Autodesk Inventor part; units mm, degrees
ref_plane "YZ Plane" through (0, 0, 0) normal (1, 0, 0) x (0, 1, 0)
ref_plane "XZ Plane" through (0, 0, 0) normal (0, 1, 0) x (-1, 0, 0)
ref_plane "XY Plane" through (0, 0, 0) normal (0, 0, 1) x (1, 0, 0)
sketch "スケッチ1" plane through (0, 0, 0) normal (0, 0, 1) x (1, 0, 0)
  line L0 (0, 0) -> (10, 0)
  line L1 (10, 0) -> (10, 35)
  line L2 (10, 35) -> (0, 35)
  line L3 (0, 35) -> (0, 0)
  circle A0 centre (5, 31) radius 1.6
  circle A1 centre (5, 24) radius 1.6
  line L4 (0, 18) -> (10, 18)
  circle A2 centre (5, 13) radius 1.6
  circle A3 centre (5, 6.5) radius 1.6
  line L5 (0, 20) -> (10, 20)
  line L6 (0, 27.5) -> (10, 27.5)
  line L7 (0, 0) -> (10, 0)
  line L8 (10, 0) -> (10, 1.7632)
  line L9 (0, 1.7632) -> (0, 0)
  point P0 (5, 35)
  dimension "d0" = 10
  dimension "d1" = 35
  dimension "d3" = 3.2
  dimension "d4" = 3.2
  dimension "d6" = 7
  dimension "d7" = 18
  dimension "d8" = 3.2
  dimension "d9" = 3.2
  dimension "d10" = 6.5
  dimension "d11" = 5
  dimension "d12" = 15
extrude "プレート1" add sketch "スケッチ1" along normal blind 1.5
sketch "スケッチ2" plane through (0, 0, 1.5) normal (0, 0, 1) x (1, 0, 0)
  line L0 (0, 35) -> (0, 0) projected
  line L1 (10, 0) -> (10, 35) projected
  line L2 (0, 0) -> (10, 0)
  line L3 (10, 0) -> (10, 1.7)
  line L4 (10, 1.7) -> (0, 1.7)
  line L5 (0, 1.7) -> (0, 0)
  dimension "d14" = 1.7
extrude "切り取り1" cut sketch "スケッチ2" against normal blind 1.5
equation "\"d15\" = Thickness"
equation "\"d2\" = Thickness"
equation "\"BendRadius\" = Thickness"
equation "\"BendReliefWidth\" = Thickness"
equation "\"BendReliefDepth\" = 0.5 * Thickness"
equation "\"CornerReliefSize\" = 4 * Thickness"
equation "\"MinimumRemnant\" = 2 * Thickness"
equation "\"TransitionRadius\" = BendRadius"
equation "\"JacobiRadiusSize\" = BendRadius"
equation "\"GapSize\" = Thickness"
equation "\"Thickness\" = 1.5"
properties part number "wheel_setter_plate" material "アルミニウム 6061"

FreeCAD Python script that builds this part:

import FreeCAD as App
import Part
import Sketcher


def add_polygon(sketch, points):
    """Adds a closed chain of lines whose ends are joined by coincident constraints."""
    first, n = sketch.GeometryCount, len(points)
    for a, b in zip(points, points[1:] + points[:1]):
        sketch.addGeometry(Part.LineSegment(App.Vector(*a, 0), App.Vector(*b, 0)), False)
    for i in range(n):
        sketch.addConstraint(Sketcher.Constraint("Coincident", first + i, 2, first + (i + 1) % n, 1))

doc = App.newDocument("Part")
body = doc.addObject("PartDesign::Body", "Body")

# Sketch on XY plane
sketch1 = body.newObject("Sketcher::SketchObject", "Sketch")
sketch1.AttachmentSupport = (doc.getObject("XY_Plane"), [""])
sketch1.MapMode = "FlatFace"
add_polygon(sketch1, [(0, 0), (10, 0), (10, 35), (0, 35)])  # lines 0-3
sketch1.addGeometry(Part.Circle(App.Vector(5, 6.5, 0), App.Vector(0, 0, 1), 1.6), False)  # 4
sketch1.addGeometry(Part.Circle(App.Vector(5, 13, 0), App.Vector(0, 0, 1), 1.6), False)  # 5
sketch1.addGeometry(Part.Circle(App.Vector(5, 24, 0), App.Vector(0, 0, 1), 1.6), False)  # 6
sketch1.addGeometry(Part.Circle(App.Vector(5, 31, 0), App.Vector(0, 0, 1), 1.6), False)  # 7
sketch1.addConstraint([
    Sketcher.Constraint("Horizontal", 0),
    Sketcher.Constraint("Vertical", 1),
    Sketcher.Constraint("Horizontal", 2),
    Sketcher.Constraint("Vertical", 3),
    Sketcher.Constraint("Coincident", 3, 2, -1, 1),
    Sketcher.Constraint("Equal", 4, 5),
    Sketcher.Constraint("Equal", 5, 6),
    Sketcher.Constraint("Equal", 6, 7),
    Sketcher.Constraint("Vertical", 4, 3, 5, 3),
    Sketcher.Constraint("Vertical", 5, 3, 6, 3),
    Sketcher.Constraint("Vertical", 6, 3, 7, 3),
    Sketcher.Constraint("Diameter", 4, 3.2),
    Sketcher.Constraint("DistanceX", 0, 1, 0, 2, 10.0),
    Sketcher.Constraint("DistanceY", 1, 1, 1, 2, 35.0),
    Sketcher.Constraint("DistanceX", -1, 1, 4, 3, 5.0),
    Sketcher.Constraint("DistanceY", 6, 3, 7, 3, 7.0),
    Sketcher.Constraint("DistanceY", 5, 3, 7, 3, 18.0),
    Sketcher.Constraint("DistanceY", -1, 1, 4, 3, 6.5),
    Sketcher.Constraint("DistanceY", 4, 3, 5, 3, 6.5),
])
pad1 = body.newObject("PartDesign::Pad", "Pad")
pad1.Profile = sketch1
pad1.Length = 1.5

# Sketch on XY plane
sketch2 = body.newObject("Sketcher::SketchObject", "Sketch001")
sketch2.AttachmentSupport = (doc.getObject("XY_Plane"), [""])
sketch2.MapMode = "FlatFace"
sketch2.AttachmentOffset = App.Placement(App.Vector(0, 0, 1.5), App.Rotation())
add_polygon(sketch2, [(10, 1.7), (0, 1.7), (0, 0), (10, 0)])  # lines 0-3
sketch2.addConstraint([
    Sketcher.Constraint("Horizontal", 0),
    Sketcher.Constraint("Vertical", 1),
    Sketcher.Constraint("Horizontal", 2),
    Sketcher.Constraint("Vertical", 3),
    Sketcher.Constraint("Coincident", 1, 2, -1, 1),
    Sketcher.Constraint("DistanceY", 1, 2, 1, 1, 1.7),
    Sketcher.Constraint("DistanceX", 0, 2, 0, 1, 10.0),
])
pocket1 = body.newObject("PartDesign::Pocket", "Pocket")
pocket1.Profile = sketch2
pocket1.Length = 1.5

doc.recompute()
